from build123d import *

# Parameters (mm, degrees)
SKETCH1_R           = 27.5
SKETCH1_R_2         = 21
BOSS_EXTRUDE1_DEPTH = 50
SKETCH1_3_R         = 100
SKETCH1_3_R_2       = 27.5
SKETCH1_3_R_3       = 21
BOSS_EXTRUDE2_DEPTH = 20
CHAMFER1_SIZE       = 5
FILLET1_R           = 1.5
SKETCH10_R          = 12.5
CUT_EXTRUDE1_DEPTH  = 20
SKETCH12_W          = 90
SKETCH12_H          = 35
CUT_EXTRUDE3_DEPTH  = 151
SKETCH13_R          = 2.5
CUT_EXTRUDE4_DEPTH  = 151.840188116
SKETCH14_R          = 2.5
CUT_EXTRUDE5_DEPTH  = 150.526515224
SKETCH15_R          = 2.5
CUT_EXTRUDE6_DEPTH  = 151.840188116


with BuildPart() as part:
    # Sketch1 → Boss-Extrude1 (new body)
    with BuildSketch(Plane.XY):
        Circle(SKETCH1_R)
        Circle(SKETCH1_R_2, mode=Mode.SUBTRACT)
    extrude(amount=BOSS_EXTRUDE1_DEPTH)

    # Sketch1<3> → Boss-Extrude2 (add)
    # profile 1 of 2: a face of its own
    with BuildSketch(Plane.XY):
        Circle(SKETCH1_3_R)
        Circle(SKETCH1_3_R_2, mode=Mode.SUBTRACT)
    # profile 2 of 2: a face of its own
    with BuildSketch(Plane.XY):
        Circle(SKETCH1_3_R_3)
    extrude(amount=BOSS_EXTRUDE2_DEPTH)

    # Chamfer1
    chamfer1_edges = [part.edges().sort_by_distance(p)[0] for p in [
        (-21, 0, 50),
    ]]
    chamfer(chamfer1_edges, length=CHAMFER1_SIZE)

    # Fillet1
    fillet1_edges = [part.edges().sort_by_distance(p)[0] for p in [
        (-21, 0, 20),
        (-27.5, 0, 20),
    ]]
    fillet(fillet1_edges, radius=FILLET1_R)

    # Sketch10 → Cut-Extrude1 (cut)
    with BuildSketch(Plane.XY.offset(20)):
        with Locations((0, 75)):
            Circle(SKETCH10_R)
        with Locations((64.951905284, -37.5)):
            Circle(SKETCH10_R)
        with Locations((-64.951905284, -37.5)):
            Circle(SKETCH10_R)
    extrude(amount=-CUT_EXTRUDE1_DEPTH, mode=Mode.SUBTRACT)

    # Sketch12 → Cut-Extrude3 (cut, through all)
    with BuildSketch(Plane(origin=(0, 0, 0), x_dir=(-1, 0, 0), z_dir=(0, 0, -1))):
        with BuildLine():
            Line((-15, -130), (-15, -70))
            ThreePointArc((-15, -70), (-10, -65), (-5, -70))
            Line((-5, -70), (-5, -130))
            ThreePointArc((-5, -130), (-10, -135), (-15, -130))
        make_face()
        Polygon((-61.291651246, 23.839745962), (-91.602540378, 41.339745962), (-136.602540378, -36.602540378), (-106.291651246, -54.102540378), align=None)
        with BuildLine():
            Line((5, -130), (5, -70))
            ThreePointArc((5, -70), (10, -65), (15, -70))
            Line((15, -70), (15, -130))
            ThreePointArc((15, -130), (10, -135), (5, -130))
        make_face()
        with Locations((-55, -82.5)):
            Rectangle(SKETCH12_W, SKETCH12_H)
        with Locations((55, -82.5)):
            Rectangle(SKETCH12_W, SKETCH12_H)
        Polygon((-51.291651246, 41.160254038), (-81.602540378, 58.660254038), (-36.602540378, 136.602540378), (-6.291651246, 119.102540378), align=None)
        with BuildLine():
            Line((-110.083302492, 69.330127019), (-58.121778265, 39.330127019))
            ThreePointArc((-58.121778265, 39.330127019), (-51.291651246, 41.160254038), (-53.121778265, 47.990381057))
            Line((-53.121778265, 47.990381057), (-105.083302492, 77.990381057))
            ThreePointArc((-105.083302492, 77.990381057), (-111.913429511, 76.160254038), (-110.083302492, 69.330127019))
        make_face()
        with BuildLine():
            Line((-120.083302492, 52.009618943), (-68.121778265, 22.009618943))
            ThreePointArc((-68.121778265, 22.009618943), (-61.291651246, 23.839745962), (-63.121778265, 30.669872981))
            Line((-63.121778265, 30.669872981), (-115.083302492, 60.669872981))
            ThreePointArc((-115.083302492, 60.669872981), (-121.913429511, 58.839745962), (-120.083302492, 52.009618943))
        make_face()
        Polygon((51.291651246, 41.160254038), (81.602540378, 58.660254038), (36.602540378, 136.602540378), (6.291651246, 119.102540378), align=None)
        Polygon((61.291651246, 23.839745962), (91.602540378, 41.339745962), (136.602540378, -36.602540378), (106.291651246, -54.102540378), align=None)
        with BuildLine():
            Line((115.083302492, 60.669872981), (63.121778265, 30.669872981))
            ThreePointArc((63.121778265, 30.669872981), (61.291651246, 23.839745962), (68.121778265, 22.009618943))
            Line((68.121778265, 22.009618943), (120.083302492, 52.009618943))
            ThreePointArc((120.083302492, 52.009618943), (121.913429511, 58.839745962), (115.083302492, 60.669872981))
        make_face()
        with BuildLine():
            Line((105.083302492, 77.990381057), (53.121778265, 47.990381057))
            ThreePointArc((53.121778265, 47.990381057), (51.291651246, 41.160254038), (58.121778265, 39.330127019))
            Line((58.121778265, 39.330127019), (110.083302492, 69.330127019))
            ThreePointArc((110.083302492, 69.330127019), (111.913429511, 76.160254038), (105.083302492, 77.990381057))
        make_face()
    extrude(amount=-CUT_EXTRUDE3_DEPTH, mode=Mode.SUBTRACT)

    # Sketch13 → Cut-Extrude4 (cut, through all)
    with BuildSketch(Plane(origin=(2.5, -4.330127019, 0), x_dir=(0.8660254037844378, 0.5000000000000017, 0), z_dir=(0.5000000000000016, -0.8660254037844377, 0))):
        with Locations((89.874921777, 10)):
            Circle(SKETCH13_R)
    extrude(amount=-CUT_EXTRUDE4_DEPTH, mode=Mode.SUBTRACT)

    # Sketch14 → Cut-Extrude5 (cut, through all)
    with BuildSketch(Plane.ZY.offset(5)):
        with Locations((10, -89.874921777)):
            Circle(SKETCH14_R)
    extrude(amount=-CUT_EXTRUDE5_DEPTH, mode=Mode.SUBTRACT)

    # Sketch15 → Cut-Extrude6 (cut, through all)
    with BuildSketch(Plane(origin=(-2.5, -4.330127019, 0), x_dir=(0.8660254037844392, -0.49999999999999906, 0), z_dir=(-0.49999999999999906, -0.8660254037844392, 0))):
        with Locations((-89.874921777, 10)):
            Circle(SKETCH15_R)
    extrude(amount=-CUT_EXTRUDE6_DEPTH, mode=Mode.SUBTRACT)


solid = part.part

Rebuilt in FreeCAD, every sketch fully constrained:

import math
import FreeCAD as App
import Part
import Sketcher

V = App.Vector
Q = App.Units.Quantity


def edges_at(feature, points):
    """Names of the edges that pass closest to the given points."""
    edges = feature.Shape.Edges
    near = lambda p: min(range(len(edges)), key=lambda i: edges[i].distToShape(Part.Vertex(*p))[0])
    return sorted({f"Edge{near(p) + 1}" for p in points})

doc = App.newDocument("Part")
body = doc.addObject("PartDesign::Body", "Body")

sketch1 = body.newObject("Sketcher::SketchObject", "Sketch")
sketch1.AttachmentSupport = (doc.getObject("XY_Plane"), [""])
sketch1.MapMode = "FlatFace"
sketch1.addGeometry(Part.Circle(V(0, 0, 0), V(0, 0, 1), 28), False)
sketch1.addGeometry(Part.Circle(V(0, 0, 0), V(0, 0, 1), 21), False)
sketch1.addConstraint(Sketcher.Constraint("Coincident", 0, 3, -1, 1))
sketch1.addConstraint(Sketcher.Constraint("Coincident", 1, 3, -1, 1))
sketch1.addConstraint(Sketcher.Constraint("Diameter", 0, 55.0))
sketch1.addConstraint(Sketcher.Constraint("Diameter", 1, 42.0))
pad1 = body.newObject("PartDesign::Pad", "Pad")
pad1.Profile = sketch1
pad1.Length = 50

sketch2 = body.newObject("Sketcher::SketchObject", "Sketch001")
sketch2.AttachmentSupport = (doc.getObject("XY_Plane"), [""])
sketch2.MapMode = "FlatFace"
sketch2.addGeometry(Part.Circle(V(0, 0, 0), V(0, 0, 1), 100), False)
sketch2.addGeometry(Part.Circle(V(0, 0, 0), V(0, 0, 1), 28), False)
sketch2.addGeometry(Part.Circle(V(0, 0, 0), V(0, 0, 1), 21), False)
sketch2.addConstraint(Sketcher.Constraint("Coincident", 0, 3, -1, 1))
sketch2.addConstraint(Sketcher.Constraint("Coincident", 1, 3, -1, 1))
sketch2.addConstraint(Sketcher.Constraint("Coincident", 2, 3, -1, 1))
sketch2.addConstraint(Sketcher.Constraint("Diameter", 0, 200.0))
sketch2.addConstraint(Sketcher.Constraint("Diameter", 1, 55.0))
sketch2.addConstraint(Sketcher.Constraint("Diameter", 2, 42.0))
pad2 = body.newObject("PartDesign::Pad", "Pad001")
pad2.Profile = sketch2
pad2.Length = 20
doc.recompute()

chamfer = body.newObject("PartDesign::Chamfer", "Chamfer")
chamfer.Base = (pad2, edges_at(pad2, [(-21, 0, 50)]))
chamfer.Size = 5
doc.recompute()

fillet = body.newObject("PartDesign::Fillet", "Fillet")
fillet.Base = (chamfer, edges_at(chamfer, [(-21, 0, 20), (-27.5, 0, 20)]))
fillet.Radius = 1.5

sketch3 = body.newObject("Sketcher::SketchObject", "Sketch002")
sketch3.AttachmentSupport = (doc.getObject("XY_Plane"), [""])
sketch3.MapMode = "FlatFace"
sketch3.AttachmentOffset = App.Placement(V(0, 0, 20), App.Rotation())
sketch3.addGeometry(Part.Circle(V(0, 75, 0), V(0, 0, 1), 12), False)
sketch3.addGeometry(Part.Circle(V(65, -38, 0), V(0, 0, 1), 12), False)
sketch3.addGeometry(Part.Circle(V(-65, -38, 0), V(0, 0, 1), 12), False)
sketch3.addConstraint(Sketcher.Constraint("Equal", 0, 1))
sketch3.addConstraint(Sketcher.Constraint("Equal", 1, 2))
sketch3.addConstraint(Sketcher.Constraint("Symmetric", 1, 3, 2, 3, -2))
sketch3.addConstraint(Sketcher.Constraint("PointOnObject", 0, 3, -2))
sketch3.addConstraint(Sketcher.Constraint("Diameter", 0, 25.0))
sketch3.addConstraint(Sketcher.Constraint("DistanceY", -1, 1, 0, 3, 75.0))
sketch3.addConstraint(Sketcher.Constraint("DistanceY", 1, 3, -1, 1, 37.5))
sketch3.addConstraint(Sketcher.Constraint("DistanceX", 2, 3, 1, 3, 129.903811))
pocket1 = body.newObject("PartDesign::Pocket", "Pocket")
pocket1.Profile = sketch3
pocket1.Length = 20

sketch4 = body.newObject("Sketcher::SketchObject", "Sketch003")
sketch4.AttachmentSupport = (doc.getObject("XY_Plane"), [""])
sketch4.MapMode = "FlatFace"
sketch4.addGeometry(Part.ArcOfCircle(Part.Circle(V(10, -130, 0), V(0, 0, 1), 5), math.radians(180), math.radians(360)), False)
sketch4.addGeometry(Part.LineSegment(V(5, -130, 0), V(5, -70, 0)), False)
sketch4.addGeometry(Part.ArcOfCircle(Part.Circle(V(10, -70, 0), V(0, 0, 1), 5), math.radians(90), math.radians(180)), False)
sketch4.addGeometry(Part.LineSegment(V(10, -65, 0), V(100, -65, 0)), False)
sketch4.addGeometry(Part.LineSegment(V(100, -65, 0), V(100, -100, 0)), False)
sketch4.addGeometry(Part.LineSegment(V(100, -100, 0), V(15, -100, 0)), False)
sketch4.addGeometry(Part.LineSegment(V(15, -100, 0), V(15, -130, 0)), False)
sketch4.addGeometry(Part.LineSegment(V(106, -54, 0), V(61, 24, 0)), False)
sketch4.addGeometry(Part.ArcOfCircle(Part.Circle(V(66, 26, 0), V(0, 0, 1), 5), math.radians(120), math.radians(210)), False)
sketch4.addGeometry(Part.LineSegment(V(63, 31, 0), V(115, 61, 0)), False)
sketch4.addGeometry(Part.ArcOfCircle(Part.Circle(V(118, 56, 0), V(0, 0, 1), 5), math.radians(-60), math.radians(120)), False)
sketch4.addGeometry(Part.LineSegment(V(120, 52, 0), V(94, 37, 0)), False)
sketch4.addGeometry(Part.LineSegment(V(94, 37, 0), V(137, -37, 0)), False)
sketch4.addGeometry(Part.LineSegment(V(137, -37, 0), V(106, -54, 0)), False)
sketch4.addGeometry(Part.ArcOfCircle(Part.Circle(V(-10, -130, 0), V(0, 0, 1), 5), math.radians(180), math.radians(360)), False)
sketch4.addGeometry(Part.LineSegment(V(-15, -130, 0), V(-15, -100, 0)), False)
sketch4.addGeometry(Part.LineSegment(V(-15, -100, 0), V(-100, -100, 0)), False)
sketch4.addGeometry(Part.LineSegment(V(-100, -100, 0), V(-100, -65, 0)), False)
sketch4.addGeometry(Part.LineSegment(V(-100, -65, 0), V(-10, -65, 0)), False)
sketch4.addGeometry(Part.ArcOfCircle(Part.Circle(V(-10, -70, 0), V(0, 0, 1), 5), math.radians(0), math.radians(90)), False)
sketch4.addGeometry(Part.LineSegment(V(-5, -70, 0), V(-5, -130, 0)), False)
sketch4.addGeometry(Part.LineSegment(V(51, 41, 0), V(6, 119, 0)), False)
sketch4.addGeometry(Part.LineSegment(V(6, 119, 0), V(37, 137, 0)), False)
sketch4.addGeometry(Part.LineSegment(V(37, 137, 0), V(79, 63, 0)), False)
sketch4.addGeometry(Part.LineSegment(V(79, 63, 0), V(105, 78, 0)), False)
sketch4.addGeometry(Part.ArcOfCircle(Part.Circle(V(108, 74, 0), V(0, 0, 1), 5), math.radians(-60), math.radians(120)), False)
sketch4.addGeometry(Part.LineSegment(V(110, 69, 0), V(58, 39, 0)), False)
sketch4.addGeometry(Part.ArcOfCircle(Part.Circle(V(56, 44, 0), V(0, 0, 1), 5), math.radians(-150), math.radians(-60)), False)
sketch4.addGeometry(Part.LineSegment(V(-6, 119, 0), V(-51, 41, 0)), False)
sketch4.addGeometry(Part.ArcOfCircle(Part.Circle(V(-56, 44, 0), V(0, 0, 1), 5), math.radians(-120), math.radians(-30)), False)
sketch4.addGeometry(Part.LineSegment(V(-58, 39, 0), V(-110, 69, 0)), False)
sketch4.addGeometry(Part.ArcOfCircle(Part.Circle(V(-108, 74, 0), V(0, 0, 1), 5), math.radians(60), math.radians(240)), False)
sketch4.addGeometry(Part.LineSegment(V(-105, 78, 0), V(-79, 63, 0)), False)
sketch4.addGeometry(Part.LineSegment(V(-79, 63, 0), V(-37, 137, 0)), False)
sketch4.addGeometry(Part.LineSegment(V(-37, 137, 0), V(-6, 119, 0)), False)
sketch4.addGeometry(Part.LineSegment(V(-61, 24, 0), V(-106, -54, 0)), False)
sketch4.addGeometry(Part.LineSegment(V(-106, -54, 0), V(-137, -37, 0)), False)
sketch4.addGeometry(Part.LineSegment(V(-137, -37, 0), V(-94, 37, 0)), False)
sketch4.addGeometry(Part.LineSegment(V(-94, 37, 0), V(-120, 52, 0)), False)
sketch4.addGeometry(Part.ArcOfCircle(Part.Circle(V(-118, 56, 0), V(0, 0, 1), 5), math.radians(60), math.radians(240)), False)
sketch4.addGeometry(Part.LineSegment(V(-115, 61, 0), V(-63, 31, 0)), False)
sketch4.addGeometry(Part.ArcOfCircle(Part.Circle(V(-66, 26, 0), V(0, 0, 1), 5), math.radians(-30), math.radians(60)), False)
sketch4.addConstraint(Sketcher.Constraint("Tangent", 0, 1, 1, 1))
sketch4.addConstraint(Sketcher.Constraint("Tangent", 1, 2, 2, 2))
sketch4.addConstraint(Sketcher.Constraint("Tangent", 2, 1, 3, 1))
sketch4.addConstraint(Sketcher.Constraint("Coincident", 3, 2, 4, 1))
sketch4.addConstraint(Sketcher.Constraint("Coincident", 4, 2, 5, 1))
sketch4.addConstraint(Sketcher.Constraint("Coincident", 5, 2, 6, 1))
sketch4.addConstraint(Sketcher.Constraint("Tangent", 6, 2, 0, 2))
sketch4.addConstraint(Sketcher.Constraint("Tangent", 7, 2, 8, 2))
sketch4.addConstraint(Sketcher.Constraint("Tangent", 8, 1, 9, 1))
sketch4.addConstraint(Sketcher.Constraint("Tangent", 9, 2, 10, 2))
sketch4.addConstraint(Sketcher.Constraint("Tangent", 10, 1, 11, 1))
sketch4.addConstraint(Sketcher.Constraint("Coincident", 11, 2, 12, 1))
sketch4.addConstraint(Sketcher.Constraint("Coincident", 12, 2, 13, 1))
sketch4.addConstraint(Sketcher.Constraint("Coincident", 13, 2, 7, 1))
sketch4.addConstraint(Sketcher.Constraint("Tangent", 14, 1, 15, 1))
sketch4.addConstraint(Sketcher.Constraint("Coincident", 15, 2, 16, 1))
sketch4.addConstraint(Sketcher.Constraint("Coincident", 16, 2, 17, 1))
sketch4.addConstraint(Sketcher.Constraint("Coincident", 17, 2, 18, 1))
sketch4.addConstraint(Sketcher.Constraint("Tangent", 18, 2, 19, 2))
sketch4.addConstraint(Sketcher.Constraint("Tangent", 19, 1, 20, 1))
sketch4.addConstraint(Sketcher.Constraint("Tangent", 20, 2, 14, 2))
sketch4.addConstraint(Sketcher.Constraint("Coincident", 21, 2, 22, 1))
sketch4.addConstraint(Sketcher.Constraint("Coincident", 22, 2, 23, 1))
sketch4.addConstraint(Sketcher.Constraint("Coincident", 23, 2, 24, 1))
sketch4.addConstraint(Sketcher.Constraint("Tangent", 24, 2, 25, 2))
sketch4.addConstraint(Sketcher.Constraint("Tangent", 25, 1, 26, 1))
sketch4.addConstraint(Sketcher.Constraint("Tangent", 26, 2, 27, 2))
sketch4.addConstraint(Sketcher.Constraint("Tangent", 27, 1, 21, 1))
sketch4.addConstraint(Sketcher.Constraint("Tangent", 28, 2, 29, 2))
sketch4.addConstraint(Sketcher.Constraint("Tangent", 29, 1, 30, 1))
sketch4.addConstraint(Sketcher.Constraint("Tangent", 30, 2, 31, 2))
sketch4.addConstraint(Sketcher.Constraint("Tangent", 31, 1, 32, 1))
sketch4.addConstraint(Sketcher.Constraint("Coincident", 32, 2, 33, 1))
sketch4.addConstraint(Sketcher.Constraint("Coincident", 33, 2, 34, 1))
sketch4.addConstraint(Sketcher.Constraint("Coincident", 34, 2, 28, 1))
sketch4.addConstraint(Sketcher.Constraint("Coincident", 35, 2, 36, 1))
sketch4.addConstraint(Sketcher.Constraint("Coincident", 36, 2, 37, 1))
sketch4.addConstraint(Sketcher.Constraint("Coincident", 37, 2, 38, 1))
sketch4.addConstraint(Sketcher.Constraint("Tangent", 38, 2, 39, 2))
sketch4.addConstraint(Sketcher.Constraint("Tangent", 39, 1, 40, 1))
sketch4.addConstraint(Sketcher.Constraint("Tangent", 40, 2, 41, 2))
sketch4.addConstraint(Sketcher.Constraint("Tangent", 41, 1, 35, 1))
sketch4.addConstraint(Sketcher.Constraint("Vertical", 1))
sketch4.addConstraint(Sketcher.Constraint("Horizontal", 3))
sketch4.addConstraint(Sketcher.Constraint("Vertical", 4))
sketch4.addConstraint(Sketcher.Constraint("Horizontal", 5))
sketch4.addConstraint(Sketcher.Constraint("Vertical", 6))
sketch4.addConstraint(Sketcher.Constraint("Vertical", 15))
sketch4.addConstraint(Sketcher.Constraint("Horizontal", 16))
sketch4.addConstraint(Sketcher.Constraint("Vertical", 17))
sketch4.addConstraint(Sketcher.Constraint("Horizontal", 18))
sketch4.addConstraint(Sketcher.Constraint("Vertical", 20))
sketch4.addConstraint(Sketcher.Constraint("Equal", 0, 2))
sketch4.addConstraint(Sketcher.Constraint("Equal", 2, 8))
sketch4.addConstraint(Sketcher.Constraint("Equal", 8, 10))
sketch4.addConstraint(Sketcher.Constraint("Equal", 10, 14))
sketch4.addConstraint(Sketcher.Constraint("Equal", 14, 19))
sketch4.addConstraint(Sketcher.Constraint("Equal", 19, 25))
sketch4.addConstraint(Sketcher.Constraint("Equal", 25, 27))
sketch4.addConstraint(Sketcher.Constraint("Equal", 27, 29))
sketch4.addConstraint(Sketcher.Constraint("Equal", 29, 31))
sketch4.addConstraint(Sketcher.Constraint("Equal", 31, 39))
sketch4.addConstraint(Sketcher.Constraint("Equal", 39, 41))
sketch4.addConstraint(Sketcher.Constraint("Symmetric", 0, 3, 14, 3, -2))
sketch4.addConstraint(Sketcher.Constraint("Symmetric", 27, 3, 29, 3, -2))
sketch4.addConstraint(Sketcher.Constraint("Symmetric", 25, 3, 31, 3, -2))
sketch4.addConstraint(Sketcher.Constraint("Symmetric", 10, 3, 39, 3, -2))
sketch4.addConstraint(Sketcher.Constraint("Symmetric", 8, 3, 41, 3, -2))
sketch4.addConstraint(Sketcher.Constraint("Symmetric", 4, 2, 16, 2, -2))
sketch4.addConstraint(Sketcher.Constraint("Symmetric", 23, 2, 32, 2, -2))
sketch4.addConstraint(Sketcher.Constraint("Symmetric", 22, 2, 33, 2, -2))
sketch4.addConstraint(Sketcher.Constraint("Symmetric", 21, 2, 34, 2, -2))
sketch4.addConstraint(Sketcher.Constraint("Symmetric", 13, 2, 35, 2, -2))
sketch4.addConstraint(Sketcher.Constraint("Symmetric", 12, 2, 36, 2, -2))
sketch4.addConstraint(Sketcher.Constraint("Symmetric", 11, 2, 37, 2, -2))
sketch4.addConstraint(Sketcher.Constraint("Perpendicular", 7, 9))
sketch4.addConstraint(Sketcher.Constraint("Parallel", 9, 11))
sketch4.addConstraint(Sketcher.Constraint("Perpendicular", 11, 12))
sketch4.addConstraint(Sketcher.Constraint("Perpendicular", 12, 13))
sketch4.addConstraint(Sketcher.Constraint("Perpendicular", 13, 21))
sketch4.addConstraint(Sketcher.Constraint("Perpendicular", 21, 22))
sketch4.addConstraint(Sketcher.Constraint("Perpendicular", 22, 23))
sketch4.addConstraint(Sketcher.Constraint("Perpendicular", 23, 24))
sketch4.addConstraint(Sketcher.Constraint("Parallel", 24, 26))
sketch4.addConstraint(Sketcher.Constraint("Horizontal", 2, 3, 19, 3))
sketch4.addConstraint(Sketcher.Constraint("Equal", 7, 21))
sketch4.addConstraint(Sketcher.Constraint("Equal", 13, 22))
sketch4.addConstraint(Sketcher.Constraint("Equal", 11, 24))
sketch4.addConstraint(Sketcher.Constraint("Radius", 0, 5.0))
sketch4.addConstraint(Sketcher.Constraint("DistanceX", 3, 1, 3, 2, 90.0))
sketch4.addConstraint(Sketcher.Constraint("DistanceY", 1, 1, 1, 2, 60.0))
sketch4.addConstraint(Sketcher.Constraint("DistanceY", 4, 2, 4, 1, 35.0))
sketch4.addConstraint(Sketcher.Constraint("Angle", 7, Q("120 deg")))
sketch4.addConstraint(Sketcher.Constraint("Distance", 7, 90.0))
sketch4.addConstraint(Sketcher.Constraint("Distance", 9, 60.0))
sketch4.addConstraint(Sketcher.Constraint("Distance", 11, 30.0))
sketch4.addConstraint(Sketcher.Constraint("DistanceX", -1, 1, 0, 3, 10.0))
sketch4.addConstraint(Sketcher.Constraint("DistanceY", 0, 3, -1, 1, 130.0))
sketch4.addConstraint(Sketcher.Constraint("DistanceX", 25, 3, 10, 3, 10.0))
sketch4.addConstraint(Sketcher.Constraint("DistanceX", -1, 1, 8, 3, 65.621778))
sketch4.addConstraint(Sketcher.Constraint("DistanceY", -1, 1, 10, 1, 52.009619))
sketch4.addConstraint(Sketcher.Constraint("DistanceY", -1, 1, 21, 2, 119.10254))
pocket2 = body.newObject("PartDesign::Pocket", "Pocket001")
pocket2.Profile = sketch4
pocket2.Type = "ThroughAll"
pocket2.Reversed = True

sketch5 = body.newObject("Sketcher::SketchObject", "Sketch004")
sketch5.Placement = App.Placement(V(2.5, -4.330127, 0), App.Rotation(V(0.866025404, 0.5, 0), V(0, 0, 1), V(0.5, -0.866025404, 0), "ZXY"))
sketch5.addGeometry(Part.Circle(V(89.9, 10, 0), V(0, 0, 1), 2.5), False)
sketch5.addConstraint(Sketcher.Constraint("Diameter", 0, 5.0))
sketch5.addConstraint(Sketcher.Constraint("DistanceY", -1, 1, 0, 3, 10.0))
sketch5.addConstraint(Sketcher.Constraint("DistanceX", -1, 1, 0, 3, 89.874922))
pocket3 = body.newObject("PartDesign::Pocket", "Pocket002")
pocket3.Profile = sketch5
pocket3.Type = "ThroughAll"

sketch6 = body.newObject("Sketcher::SketchObject", "Sketch005")
sketch6.AttachmentSupport = (doc.getObject("YZ_Plane"), [""])
sketch6.MapMode = "FlatFace"
sketch6.AttachmentOffset = App.Placement(V(0, 0, -5), App.Rotation())
sketch6.addGeometry(Part.Circle(V(-89.9, 10, 0), V(0, 0, 1), 2.5), False)
sketch6.addConstraint(Sketcher.Constraint("Diameter", 0, 5.0))
sketch6.addConstraint(Sketcher.Constraint("DistanceY", -1, 1, 0, 3, 10.0))
sketch6.addConstraint(Sketcher.Constraint("DistanceX", 0, 3, -1, 1, 89.874922))
pocket4 = body.newObject("PartDesign::Pocket", "Pocket003")
pocket4.Profile = sketch6
pocket4.Type = "ThroughAll"
pocket4.Reversed = True

sketch7 = body.newObject("Sketcher::SketchObject", "Sketch006")
sketch7.Placement = App.Placement(V(-2.5, -4.330127, 0), App.Rotation(V(0.866025404, -0.5, 0), V(0, 0, 1), V(-0.5, -0.866025404, 0), "ZXY"))
sketch7.addGeometry(Part.Circle(V(-89.9, 10, 0), V(0, 0, 1), 2.5), False)
sketch7.addConstraint(Sketcher.Constraint("Diameter", 0, 5.0))
sketch7.addConstraint(Sketcher.Constraint("DistanceY", -1, 1, 0, 3, 10.0))
sketch7.addConstraint(Sketcher.Constraint("DistanceX", 0, 3, -1, 1, 89.874922))
pocket5 = body.newObject("PartDesign::Pocket", "Pocket004")
pocket5.Profile = sketch7
pocket5.Type = "ThroughAll"

doc.recompute()
